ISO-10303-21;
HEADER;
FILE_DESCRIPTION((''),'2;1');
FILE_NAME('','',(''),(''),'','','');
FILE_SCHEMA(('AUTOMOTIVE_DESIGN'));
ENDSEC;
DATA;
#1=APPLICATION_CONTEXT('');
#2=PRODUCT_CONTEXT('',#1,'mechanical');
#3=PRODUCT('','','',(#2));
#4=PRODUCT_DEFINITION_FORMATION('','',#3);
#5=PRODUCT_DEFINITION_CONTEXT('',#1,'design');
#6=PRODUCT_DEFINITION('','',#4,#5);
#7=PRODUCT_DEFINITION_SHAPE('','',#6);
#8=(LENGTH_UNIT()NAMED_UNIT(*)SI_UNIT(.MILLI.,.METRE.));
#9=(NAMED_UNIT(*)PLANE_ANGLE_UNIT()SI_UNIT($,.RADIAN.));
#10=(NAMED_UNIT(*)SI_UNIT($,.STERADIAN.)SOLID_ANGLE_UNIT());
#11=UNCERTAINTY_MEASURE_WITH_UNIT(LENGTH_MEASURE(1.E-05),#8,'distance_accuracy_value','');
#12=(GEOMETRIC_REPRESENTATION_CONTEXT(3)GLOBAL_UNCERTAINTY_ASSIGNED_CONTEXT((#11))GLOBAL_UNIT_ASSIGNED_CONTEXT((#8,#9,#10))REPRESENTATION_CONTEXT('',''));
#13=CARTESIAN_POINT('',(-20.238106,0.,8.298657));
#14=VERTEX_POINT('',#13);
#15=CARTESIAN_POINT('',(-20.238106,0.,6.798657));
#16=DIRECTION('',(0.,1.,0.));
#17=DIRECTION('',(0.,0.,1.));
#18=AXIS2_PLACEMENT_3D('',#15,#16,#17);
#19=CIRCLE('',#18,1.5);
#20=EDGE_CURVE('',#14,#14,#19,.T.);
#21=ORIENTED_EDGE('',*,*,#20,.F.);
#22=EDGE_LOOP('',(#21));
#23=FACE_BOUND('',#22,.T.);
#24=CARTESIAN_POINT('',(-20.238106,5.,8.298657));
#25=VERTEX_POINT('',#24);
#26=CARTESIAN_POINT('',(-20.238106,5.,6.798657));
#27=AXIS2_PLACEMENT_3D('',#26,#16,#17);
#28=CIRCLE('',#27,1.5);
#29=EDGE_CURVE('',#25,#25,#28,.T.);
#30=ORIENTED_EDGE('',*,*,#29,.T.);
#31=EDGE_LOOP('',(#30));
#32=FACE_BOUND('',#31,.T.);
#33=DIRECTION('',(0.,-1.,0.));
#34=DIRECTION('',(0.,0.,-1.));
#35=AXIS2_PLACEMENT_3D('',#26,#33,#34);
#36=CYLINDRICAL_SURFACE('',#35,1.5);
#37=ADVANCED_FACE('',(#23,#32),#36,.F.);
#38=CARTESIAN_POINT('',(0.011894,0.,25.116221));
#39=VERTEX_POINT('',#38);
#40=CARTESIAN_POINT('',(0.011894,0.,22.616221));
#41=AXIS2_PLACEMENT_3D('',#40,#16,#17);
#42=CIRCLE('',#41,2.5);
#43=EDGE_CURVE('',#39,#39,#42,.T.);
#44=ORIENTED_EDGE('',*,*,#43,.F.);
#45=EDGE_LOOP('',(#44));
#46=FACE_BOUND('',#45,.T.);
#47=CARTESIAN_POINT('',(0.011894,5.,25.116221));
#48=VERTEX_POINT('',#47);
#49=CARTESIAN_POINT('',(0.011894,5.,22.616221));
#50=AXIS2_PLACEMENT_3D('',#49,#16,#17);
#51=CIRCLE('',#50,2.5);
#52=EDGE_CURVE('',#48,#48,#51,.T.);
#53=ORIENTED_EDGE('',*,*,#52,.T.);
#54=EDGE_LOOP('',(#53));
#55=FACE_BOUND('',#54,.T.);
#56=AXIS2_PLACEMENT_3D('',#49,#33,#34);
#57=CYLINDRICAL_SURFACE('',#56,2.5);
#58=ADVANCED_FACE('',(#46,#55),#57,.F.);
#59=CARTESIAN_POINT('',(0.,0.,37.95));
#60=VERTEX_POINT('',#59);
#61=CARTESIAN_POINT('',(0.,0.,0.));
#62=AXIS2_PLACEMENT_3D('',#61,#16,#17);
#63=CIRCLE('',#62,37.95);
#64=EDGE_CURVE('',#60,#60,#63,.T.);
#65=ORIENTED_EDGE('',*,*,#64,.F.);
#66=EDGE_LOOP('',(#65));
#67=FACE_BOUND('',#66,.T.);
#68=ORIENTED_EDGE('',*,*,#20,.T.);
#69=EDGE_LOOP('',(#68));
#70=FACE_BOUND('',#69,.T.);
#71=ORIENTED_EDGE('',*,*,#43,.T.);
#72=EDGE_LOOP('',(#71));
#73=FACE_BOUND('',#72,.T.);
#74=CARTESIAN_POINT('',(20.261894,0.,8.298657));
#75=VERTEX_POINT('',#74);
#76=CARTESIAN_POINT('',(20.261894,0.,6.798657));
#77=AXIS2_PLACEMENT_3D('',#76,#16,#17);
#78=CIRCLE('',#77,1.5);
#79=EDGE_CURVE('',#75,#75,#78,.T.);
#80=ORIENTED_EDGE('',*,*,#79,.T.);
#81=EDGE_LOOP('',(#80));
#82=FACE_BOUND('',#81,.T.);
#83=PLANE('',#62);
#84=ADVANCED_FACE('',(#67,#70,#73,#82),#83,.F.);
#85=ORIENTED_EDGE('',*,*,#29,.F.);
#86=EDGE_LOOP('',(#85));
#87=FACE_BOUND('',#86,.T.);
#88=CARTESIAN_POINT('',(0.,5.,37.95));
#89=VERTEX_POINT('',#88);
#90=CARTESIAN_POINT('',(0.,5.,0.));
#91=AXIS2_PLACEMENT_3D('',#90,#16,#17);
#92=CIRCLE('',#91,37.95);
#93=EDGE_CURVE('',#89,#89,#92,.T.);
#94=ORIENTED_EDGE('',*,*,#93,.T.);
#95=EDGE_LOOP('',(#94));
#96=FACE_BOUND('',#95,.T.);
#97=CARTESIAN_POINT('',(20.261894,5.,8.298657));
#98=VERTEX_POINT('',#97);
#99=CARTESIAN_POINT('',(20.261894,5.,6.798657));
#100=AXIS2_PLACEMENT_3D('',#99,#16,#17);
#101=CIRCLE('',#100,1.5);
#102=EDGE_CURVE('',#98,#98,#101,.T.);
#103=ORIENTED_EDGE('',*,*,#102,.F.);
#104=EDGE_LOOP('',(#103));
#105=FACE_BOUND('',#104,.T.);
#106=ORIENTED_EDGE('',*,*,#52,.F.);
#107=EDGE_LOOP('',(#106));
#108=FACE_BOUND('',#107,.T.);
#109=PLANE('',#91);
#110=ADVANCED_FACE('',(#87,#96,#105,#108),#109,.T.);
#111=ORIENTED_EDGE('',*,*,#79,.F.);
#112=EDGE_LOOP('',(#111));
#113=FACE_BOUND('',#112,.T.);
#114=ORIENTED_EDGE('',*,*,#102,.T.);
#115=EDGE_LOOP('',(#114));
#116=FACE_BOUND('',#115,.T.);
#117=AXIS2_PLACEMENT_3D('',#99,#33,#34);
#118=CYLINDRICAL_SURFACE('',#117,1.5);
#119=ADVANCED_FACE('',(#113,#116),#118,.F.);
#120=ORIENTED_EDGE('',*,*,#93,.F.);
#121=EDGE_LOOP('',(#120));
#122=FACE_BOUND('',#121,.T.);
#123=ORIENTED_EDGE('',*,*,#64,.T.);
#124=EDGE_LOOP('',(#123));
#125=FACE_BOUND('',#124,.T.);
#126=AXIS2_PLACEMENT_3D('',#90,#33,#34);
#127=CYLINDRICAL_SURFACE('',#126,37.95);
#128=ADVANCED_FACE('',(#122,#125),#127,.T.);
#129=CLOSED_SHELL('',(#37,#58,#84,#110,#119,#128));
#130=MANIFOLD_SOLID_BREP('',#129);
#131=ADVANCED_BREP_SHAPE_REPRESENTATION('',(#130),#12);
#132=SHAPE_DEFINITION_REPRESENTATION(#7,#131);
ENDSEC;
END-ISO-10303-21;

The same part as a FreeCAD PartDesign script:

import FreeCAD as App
import Part
import Sketcher

V = App.Vector

doc = App.newDocument("Part")
body = doc.addObject("PartDesign::Body", "Body")

# Sketch on XZ plane
sketch1 = doc.addObject("Sketcher::SketchObject", "Sketch")
body.addObject(sketch1)
sketch1.AttachmentSupport = (doc.XZ_Plane, [""])
sketch1.MapMode = "FlatFace"
sketch1.addGeometry(Part.Circle(V(0, 0, 0), V(0, 0, 1), 37.95), False)
sketch1.addGeometry(Part.Circle(V(-20.238106, 6.798657, 0), V(0, 0, 1), 1.5), False)
sketch1.addGeometry(Part.Circle(V(20.261894, 6.798657, 0), V(0, 0, 1), 1.5), False)
sketch1.addGeometry(Part.Circle(V(0.011894, 22.616221, 0), V(0, 0, 1), 2.5), False)
sketch1.addConstraint(Sketcher.Constraint("Coincident", 0, 3, -1, 1))
sketch1.addConstraint(Sketcher.Constraint("Equal", 1, 2))
sketch1.addConstraint(Sketcher.Constraint("Horizontal", 1, 3, 2, 3))
sketch1.addConstraint(Sketcher.Constraint("Diameter", 1, 3.0))
sketch1.addConstraint(Sketcher.Constraint("Diameter", 3, 5.0))
sketch1.addConstraint(Sketcher.Constraint("Diameter", 0, 75.9))
sketch1.addConstraint(Sketcher.Constraint("DistanceX", 1, 3, 2, 3, 40.5))
sketch1.addConstraint(Sketcher.Constraint("DistanceX", 1, 3, 3, 3, 20.25))
sketch1.addConstraint(Sketcher.Constraint("DistanceY", -1, 1, 3, 3, 22.616221))
sketch1.addConstraint(Sketcher.Constraint("DistanceX", 1, 3, -1, 1, 20.238106))
sketch1.addConstraint(Sketcher.Constraint("DistanceY", -1, 1, 1, 3, 6.798657))
pad1 = doc.addObject("PartDesign::Pad", "Pad")
body.addObject(pad1)
pad1.Profile = sketch1
pad1.Length = 5
pad1.Reversed = True

doc.recompute()
